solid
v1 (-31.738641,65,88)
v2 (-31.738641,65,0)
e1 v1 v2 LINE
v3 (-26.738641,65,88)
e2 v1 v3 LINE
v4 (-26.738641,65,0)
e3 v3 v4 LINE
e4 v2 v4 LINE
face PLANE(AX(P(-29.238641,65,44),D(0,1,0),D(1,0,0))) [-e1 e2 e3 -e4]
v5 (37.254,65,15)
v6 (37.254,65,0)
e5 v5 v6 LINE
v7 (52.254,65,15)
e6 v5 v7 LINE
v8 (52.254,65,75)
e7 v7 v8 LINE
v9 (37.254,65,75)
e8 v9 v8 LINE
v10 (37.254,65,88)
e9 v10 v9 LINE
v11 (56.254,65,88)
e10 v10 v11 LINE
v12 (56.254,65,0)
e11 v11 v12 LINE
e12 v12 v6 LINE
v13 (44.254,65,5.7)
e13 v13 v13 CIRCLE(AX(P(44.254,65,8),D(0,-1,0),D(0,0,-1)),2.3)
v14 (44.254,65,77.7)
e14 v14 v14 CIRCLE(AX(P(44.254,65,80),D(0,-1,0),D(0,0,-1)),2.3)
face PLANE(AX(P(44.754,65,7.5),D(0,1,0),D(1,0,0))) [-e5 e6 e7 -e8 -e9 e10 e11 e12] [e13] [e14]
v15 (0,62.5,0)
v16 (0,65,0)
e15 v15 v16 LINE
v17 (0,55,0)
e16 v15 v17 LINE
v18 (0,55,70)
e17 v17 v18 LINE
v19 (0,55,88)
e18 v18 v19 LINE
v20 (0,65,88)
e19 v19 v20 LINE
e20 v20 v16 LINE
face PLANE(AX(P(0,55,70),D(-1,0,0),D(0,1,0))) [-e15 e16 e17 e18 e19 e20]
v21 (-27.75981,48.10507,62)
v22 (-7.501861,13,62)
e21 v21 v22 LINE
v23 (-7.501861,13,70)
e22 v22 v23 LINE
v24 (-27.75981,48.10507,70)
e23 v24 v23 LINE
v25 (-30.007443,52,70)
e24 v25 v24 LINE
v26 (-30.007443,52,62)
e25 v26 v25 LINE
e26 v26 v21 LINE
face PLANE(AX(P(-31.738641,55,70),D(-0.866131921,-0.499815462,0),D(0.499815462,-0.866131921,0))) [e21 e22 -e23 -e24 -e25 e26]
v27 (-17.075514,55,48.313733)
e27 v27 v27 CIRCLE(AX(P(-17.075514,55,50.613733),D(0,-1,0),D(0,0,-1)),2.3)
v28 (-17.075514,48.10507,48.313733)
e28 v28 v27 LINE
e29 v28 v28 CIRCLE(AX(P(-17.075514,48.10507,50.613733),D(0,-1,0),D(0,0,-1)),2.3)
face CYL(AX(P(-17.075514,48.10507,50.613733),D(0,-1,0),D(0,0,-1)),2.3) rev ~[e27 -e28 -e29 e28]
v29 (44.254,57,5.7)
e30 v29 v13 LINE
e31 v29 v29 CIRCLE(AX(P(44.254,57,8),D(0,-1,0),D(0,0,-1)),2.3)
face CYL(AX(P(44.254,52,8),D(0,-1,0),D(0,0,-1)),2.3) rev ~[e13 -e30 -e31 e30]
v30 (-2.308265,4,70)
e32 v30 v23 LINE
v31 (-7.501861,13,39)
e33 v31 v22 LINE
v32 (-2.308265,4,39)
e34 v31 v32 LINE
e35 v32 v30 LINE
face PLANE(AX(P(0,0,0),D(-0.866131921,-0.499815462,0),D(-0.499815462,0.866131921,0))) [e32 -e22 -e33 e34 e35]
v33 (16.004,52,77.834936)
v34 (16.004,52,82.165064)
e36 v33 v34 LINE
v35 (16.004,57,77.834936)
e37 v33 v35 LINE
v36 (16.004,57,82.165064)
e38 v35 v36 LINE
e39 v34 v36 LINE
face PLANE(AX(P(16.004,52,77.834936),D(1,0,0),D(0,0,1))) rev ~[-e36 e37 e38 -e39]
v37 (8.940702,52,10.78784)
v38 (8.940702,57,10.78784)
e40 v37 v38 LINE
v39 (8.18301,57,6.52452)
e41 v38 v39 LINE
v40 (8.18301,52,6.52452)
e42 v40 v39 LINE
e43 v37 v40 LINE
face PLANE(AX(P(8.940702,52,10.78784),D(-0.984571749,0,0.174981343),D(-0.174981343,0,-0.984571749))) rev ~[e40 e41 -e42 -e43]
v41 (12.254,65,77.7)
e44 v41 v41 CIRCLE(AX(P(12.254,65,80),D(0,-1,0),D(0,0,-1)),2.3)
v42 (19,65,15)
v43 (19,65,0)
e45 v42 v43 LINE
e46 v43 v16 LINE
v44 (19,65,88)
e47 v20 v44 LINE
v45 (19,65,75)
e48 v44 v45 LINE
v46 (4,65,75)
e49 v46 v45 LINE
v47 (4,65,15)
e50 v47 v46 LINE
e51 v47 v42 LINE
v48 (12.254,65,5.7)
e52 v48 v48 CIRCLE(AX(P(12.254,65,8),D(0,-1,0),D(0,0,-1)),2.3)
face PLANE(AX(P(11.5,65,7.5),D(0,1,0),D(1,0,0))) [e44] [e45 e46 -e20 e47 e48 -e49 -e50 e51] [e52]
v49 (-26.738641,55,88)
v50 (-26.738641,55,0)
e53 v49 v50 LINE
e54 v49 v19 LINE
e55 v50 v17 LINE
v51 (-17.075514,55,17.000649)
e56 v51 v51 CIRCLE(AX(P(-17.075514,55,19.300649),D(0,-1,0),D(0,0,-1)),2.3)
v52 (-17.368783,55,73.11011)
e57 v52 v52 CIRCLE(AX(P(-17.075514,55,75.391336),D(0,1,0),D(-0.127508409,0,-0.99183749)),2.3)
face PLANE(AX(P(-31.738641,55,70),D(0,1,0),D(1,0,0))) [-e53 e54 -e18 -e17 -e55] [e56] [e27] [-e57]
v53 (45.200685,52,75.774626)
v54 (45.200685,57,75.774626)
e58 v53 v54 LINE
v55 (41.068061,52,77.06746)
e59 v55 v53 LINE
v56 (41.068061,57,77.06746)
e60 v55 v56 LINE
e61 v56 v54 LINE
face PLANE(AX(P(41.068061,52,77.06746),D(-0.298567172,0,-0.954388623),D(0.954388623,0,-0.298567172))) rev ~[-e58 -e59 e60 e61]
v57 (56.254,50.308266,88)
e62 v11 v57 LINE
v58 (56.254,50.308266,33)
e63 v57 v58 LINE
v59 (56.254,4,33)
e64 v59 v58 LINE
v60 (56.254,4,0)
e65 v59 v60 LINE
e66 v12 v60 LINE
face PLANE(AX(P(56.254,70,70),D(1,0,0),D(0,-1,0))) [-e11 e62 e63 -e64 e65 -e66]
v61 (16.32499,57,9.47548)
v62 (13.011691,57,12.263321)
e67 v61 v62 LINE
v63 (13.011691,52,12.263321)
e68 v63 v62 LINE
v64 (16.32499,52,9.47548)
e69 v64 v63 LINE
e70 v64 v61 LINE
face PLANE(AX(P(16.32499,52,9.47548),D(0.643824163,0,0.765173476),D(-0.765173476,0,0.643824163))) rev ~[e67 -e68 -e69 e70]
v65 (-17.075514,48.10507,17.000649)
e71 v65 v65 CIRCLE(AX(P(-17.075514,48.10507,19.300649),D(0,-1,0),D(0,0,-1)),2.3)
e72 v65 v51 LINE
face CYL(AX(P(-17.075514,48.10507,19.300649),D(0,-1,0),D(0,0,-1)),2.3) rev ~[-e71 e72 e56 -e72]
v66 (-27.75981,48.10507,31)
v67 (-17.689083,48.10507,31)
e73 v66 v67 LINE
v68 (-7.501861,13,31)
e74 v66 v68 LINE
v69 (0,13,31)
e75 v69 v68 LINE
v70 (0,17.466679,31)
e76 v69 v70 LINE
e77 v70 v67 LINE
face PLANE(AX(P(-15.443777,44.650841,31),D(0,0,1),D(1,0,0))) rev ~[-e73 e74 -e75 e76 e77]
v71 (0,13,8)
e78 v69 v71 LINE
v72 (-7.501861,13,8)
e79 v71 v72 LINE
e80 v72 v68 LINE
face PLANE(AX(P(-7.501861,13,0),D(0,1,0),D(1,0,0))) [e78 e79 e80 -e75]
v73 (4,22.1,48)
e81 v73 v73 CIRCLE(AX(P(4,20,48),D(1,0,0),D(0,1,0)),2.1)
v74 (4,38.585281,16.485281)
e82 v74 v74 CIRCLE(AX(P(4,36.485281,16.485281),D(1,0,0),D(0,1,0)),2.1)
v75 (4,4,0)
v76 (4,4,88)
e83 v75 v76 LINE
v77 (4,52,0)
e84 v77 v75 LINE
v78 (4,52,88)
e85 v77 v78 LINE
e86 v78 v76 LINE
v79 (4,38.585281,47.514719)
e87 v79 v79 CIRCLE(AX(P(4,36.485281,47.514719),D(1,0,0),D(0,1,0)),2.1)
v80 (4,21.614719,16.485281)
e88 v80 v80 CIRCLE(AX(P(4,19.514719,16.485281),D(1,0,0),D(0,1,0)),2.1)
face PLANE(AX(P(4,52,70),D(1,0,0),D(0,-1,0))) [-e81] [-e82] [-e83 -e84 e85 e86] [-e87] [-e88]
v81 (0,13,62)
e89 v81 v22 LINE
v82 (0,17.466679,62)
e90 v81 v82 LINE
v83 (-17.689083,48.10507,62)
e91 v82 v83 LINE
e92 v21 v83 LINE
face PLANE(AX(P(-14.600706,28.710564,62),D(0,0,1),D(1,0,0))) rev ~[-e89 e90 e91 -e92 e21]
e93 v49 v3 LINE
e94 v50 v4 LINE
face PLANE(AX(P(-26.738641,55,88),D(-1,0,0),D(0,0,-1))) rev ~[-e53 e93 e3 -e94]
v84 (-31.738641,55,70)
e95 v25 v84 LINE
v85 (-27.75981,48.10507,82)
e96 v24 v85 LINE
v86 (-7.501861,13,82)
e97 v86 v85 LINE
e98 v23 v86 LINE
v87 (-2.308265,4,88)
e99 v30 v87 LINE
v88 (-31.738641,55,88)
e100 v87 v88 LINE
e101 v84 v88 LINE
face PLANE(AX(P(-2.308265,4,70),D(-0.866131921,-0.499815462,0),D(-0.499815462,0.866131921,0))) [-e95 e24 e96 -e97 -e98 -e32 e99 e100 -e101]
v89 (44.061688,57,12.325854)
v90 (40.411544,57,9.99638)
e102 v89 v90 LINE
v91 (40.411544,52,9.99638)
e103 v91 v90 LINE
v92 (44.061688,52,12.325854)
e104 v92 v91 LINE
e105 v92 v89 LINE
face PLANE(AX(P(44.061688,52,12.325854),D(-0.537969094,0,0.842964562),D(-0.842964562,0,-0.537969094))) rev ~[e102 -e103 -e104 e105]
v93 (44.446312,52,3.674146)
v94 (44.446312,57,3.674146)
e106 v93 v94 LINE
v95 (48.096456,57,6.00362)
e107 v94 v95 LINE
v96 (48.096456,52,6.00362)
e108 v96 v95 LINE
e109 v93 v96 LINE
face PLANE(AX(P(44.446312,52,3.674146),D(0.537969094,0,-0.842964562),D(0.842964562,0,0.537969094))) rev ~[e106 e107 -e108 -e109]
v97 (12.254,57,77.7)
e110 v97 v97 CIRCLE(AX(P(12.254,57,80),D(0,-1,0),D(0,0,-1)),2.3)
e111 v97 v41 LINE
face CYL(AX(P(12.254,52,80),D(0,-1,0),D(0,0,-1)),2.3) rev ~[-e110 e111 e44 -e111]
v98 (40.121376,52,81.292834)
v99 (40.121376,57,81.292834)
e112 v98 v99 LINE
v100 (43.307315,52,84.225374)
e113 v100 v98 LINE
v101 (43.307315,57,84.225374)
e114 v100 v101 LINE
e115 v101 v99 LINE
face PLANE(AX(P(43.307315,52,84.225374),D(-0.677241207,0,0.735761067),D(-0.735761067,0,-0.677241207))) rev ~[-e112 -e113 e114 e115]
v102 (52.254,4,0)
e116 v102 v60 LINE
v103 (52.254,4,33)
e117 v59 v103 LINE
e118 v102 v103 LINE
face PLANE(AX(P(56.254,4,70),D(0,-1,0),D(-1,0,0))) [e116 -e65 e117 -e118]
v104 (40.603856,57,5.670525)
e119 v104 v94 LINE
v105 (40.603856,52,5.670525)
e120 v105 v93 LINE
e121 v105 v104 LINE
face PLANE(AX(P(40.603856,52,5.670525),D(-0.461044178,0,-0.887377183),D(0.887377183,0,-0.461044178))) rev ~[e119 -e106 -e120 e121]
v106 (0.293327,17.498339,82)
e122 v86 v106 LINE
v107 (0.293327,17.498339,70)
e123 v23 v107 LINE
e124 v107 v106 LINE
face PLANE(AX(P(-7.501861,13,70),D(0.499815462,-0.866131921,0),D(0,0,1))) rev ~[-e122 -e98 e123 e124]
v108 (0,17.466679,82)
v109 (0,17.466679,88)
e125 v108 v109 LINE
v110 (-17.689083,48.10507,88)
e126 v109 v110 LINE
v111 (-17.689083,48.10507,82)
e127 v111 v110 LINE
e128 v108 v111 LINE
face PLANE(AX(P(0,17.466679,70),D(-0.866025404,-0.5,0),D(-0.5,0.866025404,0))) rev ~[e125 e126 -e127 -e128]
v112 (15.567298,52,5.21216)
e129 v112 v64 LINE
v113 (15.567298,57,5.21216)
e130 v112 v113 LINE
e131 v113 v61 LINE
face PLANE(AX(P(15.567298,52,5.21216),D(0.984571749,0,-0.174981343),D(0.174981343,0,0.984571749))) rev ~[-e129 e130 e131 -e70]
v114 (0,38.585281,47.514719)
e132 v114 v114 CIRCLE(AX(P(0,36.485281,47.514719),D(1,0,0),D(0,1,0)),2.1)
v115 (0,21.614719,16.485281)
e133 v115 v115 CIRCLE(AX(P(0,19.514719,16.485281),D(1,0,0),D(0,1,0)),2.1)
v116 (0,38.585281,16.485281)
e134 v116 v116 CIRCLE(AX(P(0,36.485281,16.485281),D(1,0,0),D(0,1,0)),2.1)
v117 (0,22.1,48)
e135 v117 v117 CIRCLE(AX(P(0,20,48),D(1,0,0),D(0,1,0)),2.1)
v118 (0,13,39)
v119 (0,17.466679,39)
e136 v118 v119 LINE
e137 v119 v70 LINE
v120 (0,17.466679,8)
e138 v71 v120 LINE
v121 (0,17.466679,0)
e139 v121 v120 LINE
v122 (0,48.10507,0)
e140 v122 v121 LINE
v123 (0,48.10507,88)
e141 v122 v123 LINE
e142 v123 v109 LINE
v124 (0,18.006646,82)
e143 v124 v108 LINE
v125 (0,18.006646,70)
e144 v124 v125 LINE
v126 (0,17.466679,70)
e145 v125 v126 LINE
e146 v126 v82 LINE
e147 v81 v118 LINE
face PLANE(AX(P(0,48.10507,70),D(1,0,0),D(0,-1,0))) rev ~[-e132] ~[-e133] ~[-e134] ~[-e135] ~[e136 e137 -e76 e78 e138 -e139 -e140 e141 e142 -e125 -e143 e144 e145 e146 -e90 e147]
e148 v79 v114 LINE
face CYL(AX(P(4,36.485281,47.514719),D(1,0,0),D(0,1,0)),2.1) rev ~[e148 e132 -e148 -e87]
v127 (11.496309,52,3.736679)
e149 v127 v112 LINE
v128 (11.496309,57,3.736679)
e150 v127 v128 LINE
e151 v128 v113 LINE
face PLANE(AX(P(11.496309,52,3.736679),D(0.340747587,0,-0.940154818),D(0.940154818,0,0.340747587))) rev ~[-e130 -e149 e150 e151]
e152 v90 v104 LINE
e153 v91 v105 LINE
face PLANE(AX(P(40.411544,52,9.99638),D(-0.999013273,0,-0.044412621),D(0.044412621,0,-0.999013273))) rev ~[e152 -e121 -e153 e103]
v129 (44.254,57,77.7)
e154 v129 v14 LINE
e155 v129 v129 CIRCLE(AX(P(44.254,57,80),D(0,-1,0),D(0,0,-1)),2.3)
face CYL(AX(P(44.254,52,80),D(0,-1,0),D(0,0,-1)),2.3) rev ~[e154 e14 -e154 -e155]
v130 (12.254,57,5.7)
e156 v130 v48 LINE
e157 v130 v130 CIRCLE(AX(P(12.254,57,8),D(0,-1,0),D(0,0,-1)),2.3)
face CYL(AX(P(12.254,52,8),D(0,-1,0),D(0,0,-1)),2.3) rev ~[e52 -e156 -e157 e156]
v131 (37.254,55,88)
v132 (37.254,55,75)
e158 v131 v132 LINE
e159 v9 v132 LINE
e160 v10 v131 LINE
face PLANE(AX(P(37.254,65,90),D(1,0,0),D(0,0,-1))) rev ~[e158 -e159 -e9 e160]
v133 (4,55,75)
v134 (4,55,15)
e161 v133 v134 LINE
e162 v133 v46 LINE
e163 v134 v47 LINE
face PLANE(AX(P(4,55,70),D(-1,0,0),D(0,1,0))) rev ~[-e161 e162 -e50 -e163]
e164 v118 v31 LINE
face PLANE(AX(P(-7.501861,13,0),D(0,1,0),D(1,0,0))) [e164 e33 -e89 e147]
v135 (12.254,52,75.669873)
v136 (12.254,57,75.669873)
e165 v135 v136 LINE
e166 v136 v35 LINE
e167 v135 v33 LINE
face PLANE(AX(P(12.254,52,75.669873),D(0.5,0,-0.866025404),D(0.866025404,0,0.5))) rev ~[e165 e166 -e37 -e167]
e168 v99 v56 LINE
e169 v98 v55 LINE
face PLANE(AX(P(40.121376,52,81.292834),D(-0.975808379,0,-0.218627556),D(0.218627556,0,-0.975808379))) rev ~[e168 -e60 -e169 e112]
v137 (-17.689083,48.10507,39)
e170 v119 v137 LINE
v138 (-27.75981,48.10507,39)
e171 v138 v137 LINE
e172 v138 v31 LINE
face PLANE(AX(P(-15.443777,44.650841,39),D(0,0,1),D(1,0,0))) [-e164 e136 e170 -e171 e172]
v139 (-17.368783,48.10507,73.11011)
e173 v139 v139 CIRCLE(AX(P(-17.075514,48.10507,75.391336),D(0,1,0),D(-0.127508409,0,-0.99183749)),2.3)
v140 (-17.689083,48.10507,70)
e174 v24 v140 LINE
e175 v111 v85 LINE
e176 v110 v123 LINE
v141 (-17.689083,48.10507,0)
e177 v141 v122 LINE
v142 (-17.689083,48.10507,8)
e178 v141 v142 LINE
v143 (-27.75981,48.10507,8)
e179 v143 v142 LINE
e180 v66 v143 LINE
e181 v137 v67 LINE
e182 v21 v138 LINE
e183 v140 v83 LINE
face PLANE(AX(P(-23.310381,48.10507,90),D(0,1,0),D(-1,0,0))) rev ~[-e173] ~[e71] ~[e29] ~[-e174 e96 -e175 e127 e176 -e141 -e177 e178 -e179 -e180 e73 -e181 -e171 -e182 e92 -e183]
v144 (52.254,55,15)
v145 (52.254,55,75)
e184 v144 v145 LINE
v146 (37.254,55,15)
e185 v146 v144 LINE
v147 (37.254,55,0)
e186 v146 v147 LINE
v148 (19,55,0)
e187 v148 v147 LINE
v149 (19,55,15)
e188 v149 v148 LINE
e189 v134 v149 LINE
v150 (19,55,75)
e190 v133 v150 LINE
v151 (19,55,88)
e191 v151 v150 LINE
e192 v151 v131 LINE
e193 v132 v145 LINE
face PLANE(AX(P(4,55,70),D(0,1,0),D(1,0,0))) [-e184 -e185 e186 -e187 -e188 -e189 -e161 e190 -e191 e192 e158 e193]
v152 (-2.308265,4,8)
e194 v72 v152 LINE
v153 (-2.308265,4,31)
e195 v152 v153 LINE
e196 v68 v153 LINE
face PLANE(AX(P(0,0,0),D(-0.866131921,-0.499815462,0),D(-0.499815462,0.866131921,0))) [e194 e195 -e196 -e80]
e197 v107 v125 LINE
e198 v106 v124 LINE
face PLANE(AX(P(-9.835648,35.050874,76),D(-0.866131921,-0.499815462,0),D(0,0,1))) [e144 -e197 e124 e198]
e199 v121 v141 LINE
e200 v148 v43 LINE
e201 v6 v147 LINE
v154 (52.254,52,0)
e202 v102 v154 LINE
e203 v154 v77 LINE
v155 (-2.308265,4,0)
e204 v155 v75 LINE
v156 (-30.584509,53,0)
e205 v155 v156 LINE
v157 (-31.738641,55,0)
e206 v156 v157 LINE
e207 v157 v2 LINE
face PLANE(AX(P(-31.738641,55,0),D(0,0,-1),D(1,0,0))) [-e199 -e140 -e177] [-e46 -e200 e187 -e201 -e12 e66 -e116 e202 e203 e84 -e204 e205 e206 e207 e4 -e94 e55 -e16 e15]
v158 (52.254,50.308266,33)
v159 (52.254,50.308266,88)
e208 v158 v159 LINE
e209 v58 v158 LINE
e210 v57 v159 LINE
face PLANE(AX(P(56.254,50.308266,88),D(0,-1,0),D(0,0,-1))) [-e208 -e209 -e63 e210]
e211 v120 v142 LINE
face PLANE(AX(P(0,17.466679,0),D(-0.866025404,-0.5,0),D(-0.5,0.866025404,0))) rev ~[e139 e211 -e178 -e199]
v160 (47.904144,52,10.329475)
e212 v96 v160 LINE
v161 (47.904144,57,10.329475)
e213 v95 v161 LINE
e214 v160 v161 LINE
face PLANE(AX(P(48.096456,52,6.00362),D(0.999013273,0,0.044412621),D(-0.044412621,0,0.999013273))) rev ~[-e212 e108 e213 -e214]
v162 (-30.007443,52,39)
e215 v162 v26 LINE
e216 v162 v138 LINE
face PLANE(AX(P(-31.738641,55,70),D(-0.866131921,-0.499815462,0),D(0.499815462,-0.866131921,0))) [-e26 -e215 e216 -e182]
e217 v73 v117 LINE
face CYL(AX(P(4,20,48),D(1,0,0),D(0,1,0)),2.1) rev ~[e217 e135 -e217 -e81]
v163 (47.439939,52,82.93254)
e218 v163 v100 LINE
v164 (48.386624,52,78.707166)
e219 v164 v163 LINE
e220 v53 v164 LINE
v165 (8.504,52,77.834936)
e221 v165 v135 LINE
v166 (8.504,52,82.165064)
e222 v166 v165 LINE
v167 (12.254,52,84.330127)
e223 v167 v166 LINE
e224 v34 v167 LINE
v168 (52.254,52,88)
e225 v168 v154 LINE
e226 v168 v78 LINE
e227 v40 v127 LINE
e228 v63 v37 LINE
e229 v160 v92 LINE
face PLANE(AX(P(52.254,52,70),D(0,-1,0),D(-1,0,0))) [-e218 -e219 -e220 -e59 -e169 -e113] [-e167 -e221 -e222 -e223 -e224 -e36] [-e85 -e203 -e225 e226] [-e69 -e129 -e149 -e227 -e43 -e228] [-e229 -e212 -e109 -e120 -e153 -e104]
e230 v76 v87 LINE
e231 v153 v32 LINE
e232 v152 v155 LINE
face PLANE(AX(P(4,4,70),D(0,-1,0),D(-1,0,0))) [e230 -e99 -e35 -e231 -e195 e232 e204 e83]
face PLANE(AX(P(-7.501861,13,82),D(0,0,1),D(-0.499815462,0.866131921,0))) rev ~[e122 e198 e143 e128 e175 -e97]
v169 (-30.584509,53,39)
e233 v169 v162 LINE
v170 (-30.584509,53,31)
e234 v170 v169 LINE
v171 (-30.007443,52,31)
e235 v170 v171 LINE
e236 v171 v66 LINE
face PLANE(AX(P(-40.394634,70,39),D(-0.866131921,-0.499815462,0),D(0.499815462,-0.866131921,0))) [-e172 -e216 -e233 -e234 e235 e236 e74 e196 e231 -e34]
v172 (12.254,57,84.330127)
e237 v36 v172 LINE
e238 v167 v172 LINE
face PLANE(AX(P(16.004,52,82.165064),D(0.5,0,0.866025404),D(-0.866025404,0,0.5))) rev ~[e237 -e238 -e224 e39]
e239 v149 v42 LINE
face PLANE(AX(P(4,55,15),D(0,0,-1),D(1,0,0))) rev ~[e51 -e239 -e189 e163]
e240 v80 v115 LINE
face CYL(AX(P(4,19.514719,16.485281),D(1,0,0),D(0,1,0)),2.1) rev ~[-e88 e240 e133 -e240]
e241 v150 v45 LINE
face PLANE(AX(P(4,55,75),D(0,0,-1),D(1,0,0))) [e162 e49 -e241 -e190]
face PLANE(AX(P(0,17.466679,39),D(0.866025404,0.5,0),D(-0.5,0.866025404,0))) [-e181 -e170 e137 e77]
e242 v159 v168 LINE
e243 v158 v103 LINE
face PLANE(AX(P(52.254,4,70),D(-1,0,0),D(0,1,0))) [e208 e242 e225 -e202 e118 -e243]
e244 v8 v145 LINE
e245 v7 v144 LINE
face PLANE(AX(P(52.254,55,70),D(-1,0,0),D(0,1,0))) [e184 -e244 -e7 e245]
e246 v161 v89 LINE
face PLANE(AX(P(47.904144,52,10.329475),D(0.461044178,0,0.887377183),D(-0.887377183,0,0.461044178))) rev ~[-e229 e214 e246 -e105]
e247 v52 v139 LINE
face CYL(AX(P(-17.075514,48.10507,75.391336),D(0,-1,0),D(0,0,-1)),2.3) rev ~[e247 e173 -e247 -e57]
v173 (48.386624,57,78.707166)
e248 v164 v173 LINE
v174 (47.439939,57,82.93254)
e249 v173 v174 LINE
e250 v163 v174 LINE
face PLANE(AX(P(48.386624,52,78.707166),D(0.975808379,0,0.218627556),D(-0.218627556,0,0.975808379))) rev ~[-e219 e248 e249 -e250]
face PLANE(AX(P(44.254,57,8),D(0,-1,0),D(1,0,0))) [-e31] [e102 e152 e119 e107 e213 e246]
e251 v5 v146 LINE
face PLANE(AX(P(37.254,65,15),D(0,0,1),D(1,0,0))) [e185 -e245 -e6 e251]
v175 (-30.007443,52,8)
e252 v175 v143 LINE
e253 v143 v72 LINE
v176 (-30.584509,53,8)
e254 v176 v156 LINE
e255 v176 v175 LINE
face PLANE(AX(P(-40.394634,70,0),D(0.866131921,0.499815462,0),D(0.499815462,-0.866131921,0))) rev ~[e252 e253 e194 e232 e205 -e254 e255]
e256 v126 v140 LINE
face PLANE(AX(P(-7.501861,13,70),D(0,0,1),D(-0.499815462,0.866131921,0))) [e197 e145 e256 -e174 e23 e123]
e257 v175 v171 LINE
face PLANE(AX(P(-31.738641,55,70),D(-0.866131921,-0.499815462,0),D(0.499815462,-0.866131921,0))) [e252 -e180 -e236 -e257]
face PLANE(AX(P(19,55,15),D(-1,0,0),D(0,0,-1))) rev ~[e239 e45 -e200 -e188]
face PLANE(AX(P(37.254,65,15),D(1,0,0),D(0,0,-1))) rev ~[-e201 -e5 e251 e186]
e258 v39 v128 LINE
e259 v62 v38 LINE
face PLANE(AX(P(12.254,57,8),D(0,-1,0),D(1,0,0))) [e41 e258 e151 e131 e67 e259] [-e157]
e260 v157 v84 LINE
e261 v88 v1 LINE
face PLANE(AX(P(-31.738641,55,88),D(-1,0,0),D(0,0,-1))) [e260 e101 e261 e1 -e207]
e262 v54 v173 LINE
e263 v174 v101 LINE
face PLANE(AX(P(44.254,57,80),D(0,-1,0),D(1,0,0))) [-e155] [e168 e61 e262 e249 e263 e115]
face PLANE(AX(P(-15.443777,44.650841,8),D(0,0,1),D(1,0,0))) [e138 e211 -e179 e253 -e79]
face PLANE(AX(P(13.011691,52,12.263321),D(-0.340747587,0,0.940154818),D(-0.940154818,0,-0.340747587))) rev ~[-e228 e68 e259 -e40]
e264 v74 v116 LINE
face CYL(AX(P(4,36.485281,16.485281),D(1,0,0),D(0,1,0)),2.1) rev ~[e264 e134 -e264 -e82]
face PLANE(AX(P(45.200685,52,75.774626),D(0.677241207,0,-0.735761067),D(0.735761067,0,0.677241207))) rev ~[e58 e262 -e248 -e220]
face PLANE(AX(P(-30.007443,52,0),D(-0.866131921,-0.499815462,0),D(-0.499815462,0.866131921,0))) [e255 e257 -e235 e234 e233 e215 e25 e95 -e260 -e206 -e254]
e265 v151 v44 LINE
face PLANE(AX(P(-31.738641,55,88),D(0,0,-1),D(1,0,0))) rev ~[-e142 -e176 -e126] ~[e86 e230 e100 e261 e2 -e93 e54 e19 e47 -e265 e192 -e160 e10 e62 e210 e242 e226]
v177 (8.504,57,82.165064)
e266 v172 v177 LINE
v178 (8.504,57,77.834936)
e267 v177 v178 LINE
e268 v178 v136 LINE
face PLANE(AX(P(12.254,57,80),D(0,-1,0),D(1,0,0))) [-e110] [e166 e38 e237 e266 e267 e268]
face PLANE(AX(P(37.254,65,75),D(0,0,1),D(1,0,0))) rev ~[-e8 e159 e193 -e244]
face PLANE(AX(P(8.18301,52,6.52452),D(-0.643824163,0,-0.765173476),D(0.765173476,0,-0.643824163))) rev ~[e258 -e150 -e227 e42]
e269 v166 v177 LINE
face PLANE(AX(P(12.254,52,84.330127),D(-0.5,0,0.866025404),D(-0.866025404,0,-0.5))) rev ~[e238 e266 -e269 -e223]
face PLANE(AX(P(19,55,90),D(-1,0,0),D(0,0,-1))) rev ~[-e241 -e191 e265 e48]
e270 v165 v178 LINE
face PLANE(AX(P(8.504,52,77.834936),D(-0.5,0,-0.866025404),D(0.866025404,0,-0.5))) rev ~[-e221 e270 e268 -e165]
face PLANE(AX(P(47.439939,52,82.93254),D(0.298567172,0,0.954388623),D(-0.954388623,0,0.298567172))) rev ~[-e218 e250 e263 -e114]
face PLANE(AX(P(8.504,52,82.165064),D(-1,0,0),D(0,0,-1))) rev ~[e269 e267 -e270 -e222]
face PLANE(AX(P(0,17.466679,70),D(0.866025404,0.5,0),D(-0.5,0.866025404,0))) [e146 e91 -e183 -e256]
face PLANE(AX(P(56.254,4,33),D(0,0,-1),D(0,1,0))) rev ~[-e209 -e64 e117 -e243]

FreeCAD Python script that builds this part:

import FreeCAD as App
import Part
import Sketcher
Q = App.Units.Quantity


def add_polygon(sketch, points):
    """Adds a closed chain of lines whose ends are joined by coincident constraints."""
    first, n = sketch.GeometryCount, len(points)
    for a, b in zip(points, points[1:] + points[:1]):
        sketch.addGeometry(Part.LineSegment(App.Vector(*a, 0), App.Vector(*b, 0)), False)
    for i in range(n):
        sketch.addConstraint(Sketcher.Constraint("Coincident", first + i, 2, first + (i + 1) % n, 1))

doc = App.newDocument("Part")
body = doc.addObject("PartDesign::Body", "Body")

# Sketch on XY plane
sketch1 = body.newObject("Sketcher::SketchObject", "Sketch")
sketch1.AttachmentSupport = (doc.getObject("XY_Plane"), [""])
sketch1.MapMode = "FlatFace"
add_polygon(sketch1, [(0, 0), (4, 0), (4, 52), (52.254, 52), (52.254, 0), (56.254, 0), (56.254, 70), (0, 70)])  # lines 0-7
add_polygon(sketch1, [(52.254, 65), (52.254, 55), (4, 55), (4, 65)])  # lines 8-11
sketch1.addConstraint([
    Sketcher.Constraint("Horizontal", 0),
    Sketcher.Constraint("Vertical", 1),
    Sketcher.Constraint("Horizontal", 2),
    Sketcher.Constraint("Vertical", 3),
    Sketcher.Constraint("Horizontal", 4),
    Sketcher.Constraint("Vertical", 5),
    Sketcher.Constraint("Horizontal", 6),
    Sketcher.Constraint("Vertical", 7),
    Sketcher.Constraint("Vertical", 8),
    Sketcher.Constraint("Horizontal", 9),
    Sketcher.Constraint("Vertical", 10),
    Sketcher.Constraint("Horizontal", 11),
    Sketcher.Constraint("Coincident", 7, 2, -1, 1),
    Sketcher.Constraint("PointOnObject", 3, 2, -1),
    Sketcher.Constraint("Vertical", 3, 2, 8, 2),
    Sketcher.Constraint("Vertical", 1, 2, 9, 2),
    Sketcher.Constraint("Equal", 0, 4),
    Sketcher.Constraint("DistanceX", 0, 1, 0, 2, Q("4 mm")),
    Sketcher.Constraint("DistanceY", 1, 1, 1, 2, Q("52 mm")),
    Sketcher.Constraint("DistanceY", 5, 1, 5, 2, Q("70 mm")),
    Sketcher.Constraint("DistanceY", 8, 2, 8, 1, Q("10 mm")),
    Sketcher.Constraint("DistanceY", -1, 1, 8, 2, Q("55 mm")),
    Sketcher.Constraint("DistanceX", 2, 1, 2, 2, Q("48.254 mm")),
])
pad1 = body.newObject("PartDesign::Pad", "Pad")
pad1.Profile = sketch1
pad1.Length = 70

# Sketch on XY plane
sketch2 = body.newObject("Sketcher::SketchObject", "Sketch001")
sketch2.AttachmentSupport = (doc.getObject("XY_Plane"), [""])
sketch2.MapMode = "FlatFace"
sketch2.AttachmentOffset = App.Placement(App.Vector(0, 0, 70), App.Rotation())
add_polygon(sketch2, [(0, 62.5), (0, 70), (-40.394634, 70), (0, 0.034441), (0, 17.466679), (-26, 62.5)])  # lines 0-5
sketch2.addConstraint([
    Sketcher.Constraint("Vertical", 0),
    Sketcher.Constraint("Horizontal", 1),
    Sketcher.Constraint("Vertical", 3),
    Sketcher.Constraint("Horizontal", 5),
    Sketcher.Constraint("PointOnObject", 0, 2, -2),
    Sketcher.Constraint("PointOnObject", 2, 2, -2),
    Sketcher.Constraint("Parallel", 2, 4),
    Sketcher.Constraint("DistanceX", 5, 1, 5, 2, Q("26 mm")),
    Sketcher.Constraint("Angle", 2, Q("-60 deg")),
    Sketcher.Constraint("DistanceY", 0, 1, 0, 2, Q("7.5 mm")),
    Sketcher.Constraint("DistanceY", -1, 1, 0, 2, Q("70 mm")),
    Sketcher.Constraint("DistanceY", 3, 1, 3, 2, Q("17.432238 mm")),
])
pad2 = body.newObject("PartDesign::Pad", "Pad001")
pad2.Profile = sketch2
pad2.Length = 8
pad2.Reversed = True

# Sketch on XY plane
sketch3 = body.newObject("Sketcher::SketchObject", "Sketch002")
sketch3.AttachmentSupport = (doc.getObject("XY_Plane"), [""])
sketch3.MapMode = "FlatFace"
add_polygon(sketch3, [(-40.394634, 70), (0, 70), (0, 62.5), (-26, 62.5), (0, 17.466679), (0, 0)])  # lines 0-5
sketch3.addConstraint([
    Sketcher.Constraint("Horizontal", 0),
    Sketcher.Constraint("Vertical", 1),
    Sketcher.Constraint("Horizontal", 2),
    Sketcher.Constraint("Vertical", 4),
    Sketcher.Constraint("Coincident", 4, 2, -1, 1),
    Sketcher.Constraint("PointOnObject", 0, 2, -2),
    Sketcher.Constraint("DistanceX", 2, 2, 2, 1, Q("26 mm")),
    Sketcher.Constraint("Angle", 3, Q("-60 deg")),
    Sketcher.Constraint("DistanceY", 1, 2, 1, 1, Q("7.5 mm")),
    Sketcher.Constraint("DistanceY", -1, 1, 0, 2, Q("70 mm")),
    Sketcher.Constraint("DistanceX", 0, 1, 0, 2, Q("40.394634 mm")),
])
pad3 = body.newObject("PartDesign::Pad", "Pad002")
pad3.Profile = sketch3
pad3.Length = 8

# Sketch on XY plane
sketch4 = body.newObject("Sketcher::SketchObject", "Sketch003")
sketch4.AttachmentSupport = (doc.getObject("XY_Plane"), [""])
sketch4.MapMode = "FlatFace"
sketch4.AttachmentOffset = App.Placement(App.Vector(0, 0, 39), App.Rotation())
add_polygon(sketch4, [(0, 70), (0, 62.5), (-26, 62.5), (0, 17.466679), (0, 0), (-40.394634, 70)])  # lines 0-5
sketch4.addConstraint([
    Sketcher.Constraint("Vertical", 0),
    Sketcher.Constraint("Horizontal", 1),
    Sketcher.Constraint("Vertical", 3),
    Sketcher.Constraint("Horizontal", 5),
    Sketcher.Constraint("Coincident", 3, 2, -1, 1),
    Sketcher.Constraint("PointOnObject", 0, 2, -2),
    Sketcher.Constraint("DistanceX", 1, 2, 1, 1, Q("26 mm")),
    Sketcher.Constraint("Angle", 2, Q("-60 deg")),
    Sketcher.Constraint("DistanceY", 0, 2, 0, 1, Q("7.5 mm")),
    Sketcher.Constraint("DistanceY", -1, 1, 4, 2, Q("70 mm")),
    Sketcher.Constraint("DistanceX", 5, 1, 5, 2, Q("40.394634 mm")),
])
pad4 = body.newObject("PartDesign::Pad", "Pad003")
pad4.Profile = sketch4
pad4.Length = 8
pad4.Reversed = True

# Sketch on XY plane
sketch5 = body.newObject("Sketcher::SketchObject", "Sketch004")
sketch5.AttachmentSupport = (doc.getObject("XY_Plane"), [""])
sketch5.MapMode = "FlatFace"
add_polygon(sketch5, [(0, 62.5), (-36.066638, 62.5), (-40.394634, 70), (0, 70)])  # lines 0-3
add_polygon(sketch5, [(4, 0), (0, 0), (-7.501861, 13), (4, 13)])  # lines 4-7
sketch5.addConstraint([
    Sketcher.Constraint("Horizontal", 0),
    Sketcher.Constraint("Horizontal", 2),
    Sketcher.Constraint("Vertical", 3),
    Sketcher.Constraint("Horizontal", 4),
    Sketcher.Constraint("Horizontal", 6),
    Sketcher.Constraint("Vertical", 7),
    Sketcher.Constraint("Coincident", 4, 2, -1, 1),
    Sketcher.Constraint("PointOnObject", 2, 2, -2),
    Sketcher.Constraint("Parallel", 1, 5),
    Sketcher.Constraint("DistanceX", 4, 2, 4, 1, Q("4 mm")),
    Sketcher.Constraint("DistanceY", 7, 2, 7, 1, Q("13 mm")),
    Sketcher.Constraint("DistanceY", 3, 2, 3, 1, Q("7.5 mm")),
    Sketcher.Constraint("DistanceY", -1, 1, 1, 2, Q("70 mm")),
    Sketcher.Constraint("DistanceX", 6, 1, 6, 2, Q("11.501861 mm")),
    Sketcher.Constraint("DistanceX", 0, 2, 0, 1, Q("36.066638 mm")),
])
pad5 = body.newObject("PartDesign::Pad", "Pad004")
pad5.Profile = sketch5
pad5.Length = 70

# Sketch on XY plane
sketch6 = body.newObject("Sketcher::SketchObject", "Sketch005")
sketch6.AttachmentSupport = (doc.getObject("XY_Plane"), [""])
sketch6.MapMode = "FlatFace"
sketch6.AttachmentOffset = App.Placement(App.Vector(0, 0, 70), App.Rotation())
add_polygon(sketch6, [(-40.394634, 70), (-40.394634, 53), (0, 53), (0, 70)])  # lines 0-3
sketch6.addConstraint([
    Sketcher.Constraint("Vertical", 0),
    Sketcher.Constraint("Horizontal", 1),
    Sketcher.Constraint("Vertical", 2),
    Sketcher.Constraint("Horizontal", 3),
    Sketcher.Constraint("PointOnObject", 1, 2, -2),
    Sketcher.Constraint("DistanceY", 0, 2, 0, 1, Q("17 mm")),
    Sketcher.Constraint("DistanceY", -1, 1, 0, 2, Q("53 mm")),
    Sketcher.Constraint("DistanceX", 1, 1, 1, 2, Q("40.394634 mm")),
])
pocket1 = body.newObject("PartDesign::Pocket", "Pocket")
pocket1.Profile = sketch6
pocket1.Length = 70

# Sketch on XY plane
sketch7 = body.newObject("Sketcher::SketchObject", "Sketch006")
sketch7.AttachmentSupport = (doc.getObject("XY_Plane"), [""])
sketch7.MapMode = "FlatFace"
add_polygon(sketch7, [(4, 55), (4, 52), (-30.007443, 52), (-31.738641, 55)])  # lines 0-3
sketch7.addConstraint([
    Sketcher.Constraint("Vertical", 0),
    Sketcher.Constraint("Horizontal", 1),
    Sketcher.Constraint("Horizontal", 3),
    Sketcher.Constraint("DistanceY", 0, 2, 0, 1, Q("3 mm")),
    Sketcher.Constraint("DistanceX", -1, 1, 0, 2, Q("4 mm")),
    Sketcher.Constraint("DistanceY", -1, 1, 0, 2, Q("52 mm")),
    Sketcher.Constraint("DistanceX", 3, 1, 3, 2, Q("35.738641 mm")),
    Sketcher.Constraint("DistanceX", 2, 2, 1, 2, Q("1.731199 mm")),
])
pad6 = body.newObject("PartDesign::Pad", "Pad005")
pad6.Profile = sketch7
pad6.Length = 70

# Sketch on XY plane
sketch8 = body.newObject("Sketcher::SketchObject", "Sketch007")
sketch8.AttachmentSupport = (doc.getObject("XY_Plane"), [""])
sketch8.MapMode = "FlatFace"
sketch8.AttachmentOffset = App.Placement(App.Vector(0, 0, 70), App.Rotation())
add_polygon(sketch8, [(-31.738641, 55), (0, 0), (-3.053687, 13), (-27.288966, 55)])  # lines 0-3
sketch8.addConstraint([
    Sketcher.Constraint("Horizontal", 3),
    Sketcher.Constraint("Coincident", 0, 2, -1, 1),
    Sketcher.Constraint("DistanceY", -1, 1, 1, 2, Q("13 mm")),
    Sketcher.Constraint("DistanceY", -1, 1, 2, 2, Q("55 mm")),
    Sketcher.Constraint("Distance", 0, Q("63.500719 mm")),
    Sketcher.Constraint("Distance", 1, Q("13.353839 mm")),
    Sketcher.Constraint("DistanceX", 3, 2, 3, 1, Q("4.449676 mm")),
])
pad7 = body.newObject("PartDesign::Pad", "Pad006")
pad7.Profile = sketch8
pad7.Length = 8
pad7.Reversed = True

# Sketch on XY plane
sketch9 = body.newObject("Sketcher::SketchObject", "Sketch008")
sketch9.AttachmentSupport = (doc.getObject("XY_Plane"), [""])
sketch9.MapMode = "FlatFace"
sketch9.AttachmentOffset = App.Placement(App.Vector(0, 0, 70), App.Rotation())
add_polygon(sketch9, [(-31.738641, 55), (-27.75981, 48.10507), (0, 48.10507), (0, 55)])  # lines 0-3
sketch9.addConstraint([
    Sketcher.Constraint("Horizontal", 1),
    Sketcher.Constraint("Vertical", 2),
    Sketcher.Constraint("Horizontal", 3),
    Sketcher.Constraint("PointOnObject", 1, 2, -2),
    Sketcher.Constraint("DistanceY", -1, 1, 2, 2, Q("55 mm")),
    Sketcher.Constraint("Distance", 0, Q("7.9606 mm")),
    Sketcher.Constraint("DistanceX", 1, 1, 1, 2, Q("27.75981 mm")),
    Sketcher.Constraint("DistanceX", 3, 2, 3, 1, Q("31.738641 mm")),
])
pad8 = body.newObject("PartDesign::Pad", "Pad007")
pad8.Profile = sketch9
pad8.Length = 70
pad8.Reversed = True

# Sketch on XZ plane
sketch10 = body.newObject("Sketcher::SketchObject", "Sketch009")
sketch10.AttachmentSupport = (doc.getObject("XZ_Plane"), [""])
sketch10.MapMode = "FlatFace"
add_polygon(sketch10, [(-15.562047, 77.248106), (-15.562047, -10.620454), (67.439364, -10.620454), (67.439364, 77.248106)])  # lines 0-3
sketch10.addConstraint([
    Sketcher.Constraint("Vertical", 0),
    Sketcher.Constraint("Horizontal", 1),
    Sketcher.Constraint("Vertical", 2),
    Sketcher.Constraint("Horizontal", 3),
    Sketcher.Constraint("DistanceX", 1, 1, 1, 2, Q("83.001411 mm")),
    Sketcher.Constraint("DistanceY", 0, 2, 0, 1, Q("87.86856 mm")),
    Sketcher.Constraint("DistanceX", 0, 2, -1, 1, Q("15.562047 mm")),
    Sketcher.Constraint("DistanceY", 0, 2, -1, 1, Q("10.620454 mm")),
])
pocket2 = body.newObject("PartDesign::Pocket", "Pocket001")
pocket2.Profile = sketch10
pocket2.Length = 4

# Sketch on XY plane
sketch11 = body.newObject("Sketcher::SketchObject", "Sketch010")
sketch11.AttachmentSupport = (doc.getObject("XY_Plane"), [""])
sketch11.MapMode = "FlatFace"
sketch11.AttachmentOffset = App.Placement(App.Vector(0, 0, 70), App.Rotation())
add_polygon(sketch11, [(-31.738641, 55), (-2.308265, 4), (4, 4), (4, 52), (52.254, 52), (52.254, 4), (56.254, 4), (56.254, 70), (0, 70), (0, 55)])  # lines 0-9
add_polygon(sketch11, [(-17.689083, 48.10507), (0, 48.10507), (0, 17.466679)])  # lines 10-12
add_polygon(sketch11, [(4, 55), (4, 65), (52.254, 65), (52.254, 55)])  # lines 13-16
sketch11.addConstraint([
    Sketcher.Constraint("Horizontal", 1),
    Sketcher.Constraint("Vertical", 2),
    Sketcher.Constraint("Horizontal", 3),
    Sketcher.Constraint("Vertical", 4),
    Sketcher.Constraint("Horizontal", 5),
    Sketcher.Constraint("Vertical", 6),
    Sketcher.Constraint("Horizontal", 7),
    Sketcher.Constraint("Vertical", 8),
    Sketcher.Constraint("Horizontal", 9),
    Sketcher.Constraint("Horizontal", 10),
    Sketcher.Constraint("Vertical", 11),
    Sketcher.Constraint("Vertical", 13),
    Sketcher.Constraint("Horizontal", 14),
    Sketcher.Constraint("Vertical", 15),
    Sketcher.Constraint("Horizontal", 16),
    Sketcher.Constraint("PointOnObject", 7, 2, -2),
    Sketcher.Constraint("PointOnObject", 10, 2, -2),
    Sketcher.Constraint("Horizontal", 1, 2, 4, 2),
    Sketcher.Constraint("Horizontal", 9, 2, 15, 2),
    Sketcher.Constraint("Vertical", 2, 2, 13, 2),
    Sketcher.Constraint("Vertical", 4, 2, 14, 2),
    Sketcher.Constraint("DistanceX", 5, 1, 5, 2, Q("4 mm")),
    Sketcher.Constraint("DistanceY", 2, 1, 2, 2, Q("48 mm")),
    Sketcher.Constraint("DistanceY", 6, 1, 6, 2, Q("66 mm")),
    Sketcher.Constraint("DistanceY", 8, 2, 8, 1, Q("15 mm")),
    Sketcher.Constraint("DistanceY", 13, 1, 13, 2, Q("10 mm")),
    Sketcher.Constraint("Angle", 12, Q("120 deg")),
    Sketcher.Constraint("DistanceY", -1, 1, 0, 2, Q("4 mm")),
    Sketcher.Constraint("DistanceX", -1, 1, 1, 2, Q("4 mm")),
    Sketcher.Constraint("DistanceX", 3, 1, 3, 2, Q("48.254 mm")),
    Sketcher.Constraint("DistanceX", 9, 2, 9, 1, Q("31.738641 mm")),
    Sketcher.Constraint("DistanceY", 11, 2, 11, 1, Q("30.638391 mm")),
    Sketcher.Constraint("DistanceX", 1, 1, 1, 2, Q("6.308265 mm")),
    Sketcher.Constraint("DistanceY", -1, 1, 10, 2, Q("48.10507 mm")),
])
pad9 = body.newObject("PartDesign::Pad", "Pad008")
pad9.Profile = sketch11
pad9.Length = 20

# Sketch on XY plane
sketch12 = body.newObject("Sketcher::SketchObject", "Sketch011")
sketch12.AttachmentSupport = (doc.getObject("XY_Plane"), [""])
sketch12.MapMode = "FlatFace"
sketch12.AttachmentOffset = App.Placement(App.Vector(0, 0, 90), App.Rotation())
add_polygon(sketch12, [(0, 70), (0, 65), (56.254, 65), (56.254, 70)])  # lines 0-3
sketch12.addConstraint([
    Sketcher.Constraint("Vertical", 0),
    Sketcher.Constraint("Horizontal", 1),
    Sketcher.Constraint("Vertical", 2),
    Sketcher.Constraint("Horizontal", 3),
    Sketcher.Constraint("PointOnObject", 0, 2, -2),
    Sketcher.Constraint("DistanceY", 0, 2, 0, 1, Q("5 mm")),
    Sketcher.Constraint("DistanceY", -1, 1, 0, 2, Q("65 mm")),
    Sketcher.Constraint("DistanceX", 1, 1, 1, 2, Q("56.254 mm")),
])
pocket3 = body.newObject("PartDesign::Pocket", "Pocket002")
pocket3.Profile = sketch12
pocket3.Length = 100

# Sketch on XZ plane
sketch13 = body.newObject("Sketcher::SketchObject", "Sketch012")
sketch13.AttachmentSupport = (doc.getObject("XZ_Plane"), [""])
sketch13.MapMode = "FlatFace"
sketch13.AttachmentOffset = App.Placement(App.Vector(0, 0, -65), App.Rotation())
add_polygon(sketch13, [(37.254, 0), (37.254, 15), (52.254, 15), (52.254, 0)])  # lines 0-3
add_polygon(sketch13, [(37.254, 75), (37.254, 90), (52.254, 90), (52.254, 75)])  # lines 4-7
sketch13.addConstraint([
    Sketcher.Constraint("Vertical", 0),
    Sketcher.Constraint("Horizontal", 1),
    Sketcher.Constraint("Vertical", 2),
    Sketcher.Constraint("Horizontal", 3),
    Sketcher.Constraint("Vertical", 4),
    Sketcher.Constraint("Horizontal", 5),
    Sketcher.Constraint("Vertical", 6),
    Sketcher.Constraint("Horizontal", 7),
    Sketcher.Constraint("PointOnObject", 2, 2, -1),
    Sketcher.Constraint("Vertical", 3, 2, 4, 2),
    Sketcher.Constraint("Vertical", 2, 2, 5, 2),
    Sketcher.Constraint("Equal", 7, 0),
    Sketcher.Constraint("Equal", 2, 4),
    Sketcher.Constraint("DistanceX", 1, 1, 1, 2, Q("15 mm")),
    Sketcher.Constraint("DistanceY", -1, 1, 4, 2, Q("90 mm")),
    Sketcher.Constraint("DistanceX", -1, 1, 0, 2, Q("37.254 mm")),
])
pad10 = body.newObject("PartDesign::Pad", "Pad009")
pad10.Profile = sketch13
pad10.Length = 13

# Sketch on XZ plane
sketch14 = body.newObject("Sketcher::SketchObject", "Sketch013")
sketch14.AttachmentSupport = (doc.getObject("XZ_Plane"), [""])
sketch14.MapMode = "FlatFace"
sketch14.AttachmentOffset = App.Placement(App.Vector(0, 0, -52), App.Rotation())
add_polygon(sketch14, [(48.096456, 6.00362), (47.904144, 10.329475), (44.061688, 12.325854), (40.411544, 9.99638), (40.603856, 5.670525), (44.446312, 3.674146)])  # lines 0-5
add_polygon(sketch14, [(45.200685, 75.774626), (48.386624, 78.707166), (47.439939, 82.93254), (43.307315, 84.225374), (40.121376, 81.292834), (41.068061, 77.06746)])  # lines 6-11
sketch14.addConstraint([
    Sketcher.Constraint("Parallel", 0, 3),
    Sketcher.Constraint("Parallel", 1, 4),
    Sketcher.Constraint("Parallel", 2, 5),
    Sketcher.Constraint("Parallel", 6, 9),
    Sketcher.Constraint("Parallel", 7, 10),
    Sketcher.Constraint("Parallel", 8, 11),
    Sketcher.Constraint("Equal", 0, 1),
    Sketcher.Constraint("Equal", 1, 2),
    Sketcher.Constraint("Equal", 2, 3),
    Sketcher.Constraint("Equal", 5, 6),
    Sketcher.Constraint("Equal", 6, 7),
    Sketcher.Constraint("Equal", 7, 8),
    Sketcher.Constraint("Equal", 8, 9),
    Sketcher.Constraint("DistanceX", 2, 2, 0, 2, Q("7.4926 mm")),
    Sketcher.Constraint("DistanceY", 0, 2, 8, 2, Q("73.8959 mm")),
    Sketcher.Constraint("DistanceY", -1, 1, 2, 2, Q("9.99638 mm")),
    Sketcher.Constraint("DistanceY", -1, 1, 5, 2, Q("6.00362 mm")),
    Sketcher.Constraint("DistanceX", -1, 1, 7, 2, Q("47.439939 mm")),
    Sketcher.Constraint("DistanceY", -1, 1, 7, 2, Q("82.93254 mm")),
    Sketcher.Constraint("DistanceX", -1, 1, 10, 2, Q("41.068061 mm")),
    Sketcher.Constraint("DistanceY", -1, 1, 10, 2, Q("77.06746 mm")),
    Sketcher.Constraint("DistanceY", 0, 2, 1, 2, Q("1.99638 mm")),
    Sketcher.Constraint("DistanceX", 3, 2, 1, 2, Q("3.457831 mm")),
    Sketcher.Constraint("DistanceX", 0, 2, 6, 2, Q("0.48248 mm")),
])
pocket4 = body.newObject("PartDesign::Pocket", "Pocket003")
pocket4.Profile = sketch14
pocket4.Length = 5

# Sketch on XZ plane
sketch15 = body.newObject("Sketcher::SketchObject", "Sketch014")
sketch15.AttachmentSupport = (doc.getObject("XZ_Plane"), [""])
sketch15.MapMode = "FlatFace"
sketch15.AttachmentOffset = App.Placement(App.Vector(0, 0, -52), App.Rotation())
sketch15.addGeometry([
    Part.Circle(App.Vector(44.254, 80, 0), App.Vector(0, 0, 1), 2.3),
    Part.Circle(App.Vector(44.254, 8, 0), App.Vector(0, 0, 1), 2.3),
], False)
sketch15.addConstraint([
    Sketcher.Constraint("Equal", 0, 1),
    Sketcher.Constraint("Vertical", 0, 3, 1, 3),
    Sketcher.Constraint("Diameter", 0, Q("4.6 mm")),
    Sketcher.Constraint("DistanceY", -1, 1, 0, 3, Q("80 mm")),
    Sketcher.Constraint("DistanceY", -1, 1, 1, 3, Q("8 mm")),
    Sketcher.Constraint("DistanceX", -1, 1, 0, 3, Q("44.254 mm")),
])
pocket5 = body.newObject("PartDesign::Pocket", "Pocket004")
pocket5.Profile = sketch15
pocket5.Length = 15

# Sketch on an angled plane
sketch16 = body.newObject("Sketcher::SketchObject", "Sketch015")
sketch16.Placement = App.Placement(App.Vector(0, 0, 0), App.Rotation(App.Vector(0, 0, 1), App.Vector(-0.499815462, 0.866131921, 0), App.Vector(-0.866131921, -0.499815462, 0), "ZXY"))
add_polygon(sketch16, [(70, 55.540119), (70, 15.009261), (82, 15.009261), (82, 55.540119)])  # lines 0-3
sketch16.addConstraint([
    Sketcher.Constraint("Vertical", 0),
    Sketcher.Constraint("Horizontal", 1),
    Sketcher.Constraint("Vertical", 2),
    Sketcher.Constraint("Horizontal", 3),
    Sketcher.Constraint("DistanceX", 1, 1, 1, 2, Q("12 mm")),
    Sketcher.Constraint("DistanceX", -1, 1, 0, 2, Q("70 mm")),
    Sketcher.Constraint("DistanceY", 0, 2, 0, 1, Q("40.530858 mm")),
    Sketcher.Constraint("DistanceY", -1, 1, 0, 2, Q("15.009261 mm")),
])
pocket6 = body.newObject("PartDesign::Pocket", "Pocket005")
pocket6.Profile = sketch16
pocket6.Length = 9

# Sketch on XZ plane
sketch17 = body.newObject("Sketcher::SketchObject", "Sketch016")
sketch17.AttachmentSupport = (doc.getObject("XZ_Plane"), [""])
sketch17.MapMode = "FlatFace"
sketch17.AttachmentOffset = App.Placement(App.Vector(0, 0, -48.10507), App.Rotation())
sketch17.addGeometry([
    Part.Circle(App.Vector(-17.075514, 19.300649, 0), App.Vector(0, 0, 1), 2.3),
    Part.Circle(App.Vector(-17.075514, 50.613733, 0), App.Vector(0, 0, 1), 2.3),
], False)
sketch17.addConstraint([
    Sketcher.Constraint("Equal", 0, 1),
    Sketcher.Constraint("Vertical", 0, 3, 1, 3),
    Sketcher.Constraint("Diameter", 0, Q("4.6 mm")),
    Sketcher.Constraint("DistanceY", -1, 1, 0, 3, Q("19.300649 mm")),
    Sketcher.Constraint("DistanceX", 0, 3, -1, 1, Q("17.075514 mm")),
    Sketcher.Constraint("DistanceY", -1, 1, 1, 3, Q("50.613733 mm")),
])
pocket7 = body.newObject("PartDesign::Pocket", "Pocket006")
pocket7.Profile = sketch17
pocket7.Length = 20

# Sketch on XZ plane
sketch18 = body.newObject("Sketcher::SketchObject", "Sketch017")
sketch18.AttachmentSupport = (doc.getObject("XZ_Plane"), [""])
sketch18.MapMode = "FlatFace"
sketch18.AttachmentOffset = App.Placement(App.Vector(0, 0, -48.10507), App.Rotation())
sketch18.addGeometry(Part.Circle(App.Vector(-17.075514, 75.391336, 0), App.Vector(0, 0, 1), 2.3), False)
sketch18.addConstraint([
    Sketcher.Constraint("Diameter", 0, Q("4.6 mm")),
    Sketcher.Constraint("DistanceX", 0, 3, -1, 1, Q("17.075514 mm")),
    Sketcher.Constraint("DistanceY", -1, 1, 0, 3, Q("75.391336 mm")),
])
pocket8 = body.newObject("PartDesign::Pocket", "Pocket007")
pocket8.Profile = sketch18
pocket8.Length = 20

# Sketch on XY plane
sketch19 = body.newObject("Sketcher::SketchObject", "Sketch018")
sketch19.AttachmentSupport = (doc.getObject("XY_Plane"), [""])
sketch19.MapMode = "FlatFace"
sketch19.AttachmentOffset = App.Placement(App.Vector(0, 0, 90), App.Rotation())
add_polygon(sketch19, [(-27.75981, 48.10507), (-23.310381, 48.10507), (-23.310381, 55), (-31.738641, 55)])  # lines 0-3
sketch19.addConstraint([
    Sketcher.Constraint("Horizontal", 0),
    Sketcher.Constraint("Vertical", 1),
    Sketcher.Constraint("Horizontal", 2),
    Sketcher.Constraint("DistanceY", -1, 1, 1, 2, Q("55 mm")),
    Sketcher.Constraint("Distance", 3, Q("7.9606 mm")),
    Sketcher.Constraint("DistanceX", 0, 1, 0, 2, Q("4.449429 mm")),
    Sketcher.Constraint("DistanceX", 2, 2, 2, 1, Q("8.42826 mm")),
    Sketcher.Constraint("DistanceX", 0, 2, -1, 1, Q("23.310381 mm")),
])
pad11 = body.newObject("PartDesign::Pad", "Pad010")
pad11.Profile = sketch19
pad11.Length = 20
pad11.Reversed = True

# Sketch on XZ plane
sketch20 = body.newObject("Sketcher::SketchObject", "Sketch019")
sketch20.AttachmentSupport = (doc.getObject("XZ_Plane"), [""])
sketch20.MapMode = "FlatFace"
sketch20.AttachmentOffset = App.Placement(App.Vector(0, 0, -55), App.Rotation())
add_polygon(sketch20, [(4, 0), (4, 15), (19, 15), (19, 0)])  # lines 0-3
add_polygon(sketch20, [(4, 75), (4, 90), (19, 90), (19, 75)])  # lines 4-7
sketch20.addConstraint([
    Sketcher.Constraint("Vertical", 0),
    Sketcher.Constraint("Horizontal", 1),
    Sketcher.Constraint("Vertical", 2),
    Sketcher.Constraint("Horizontal", 3),
    Sketcher.Constraint("Vertical", 4),
    Sketcher.Constraint("Horizontal", 5),
    Sketcher.Constraint("Vertical", 6),
    Sketcher.Constraint("Horizontal", 7),
    Sketcher.Constraint("PointOnObject", 2, 2, -1),
    Sketcher.Constraint("Vertical", 3, 2, 4, 2),
    Sketcher.Constraint("Vertical", 2, 2, 5, 2),
    Sketcher.Constraint("Equal", 7, 0),
    Sketcher.Constraint("Equal", 2, 4),
    Sketcher.Constraint("DistanceX", 1, 1, 1, 2, Q("15 mm")),
    Sketcher.Constraint("DistanceX", -1, 1, 0, 2, Q("4 mm")),
    Sketcher.Constraint("DistanceY", -1, 1, 4, 2, Q("90 mm")),
])
pad12 = body.newObject("PartDesign::Pad", "Pad011")
pad12.Profile = sketch20
pad12.Length = 10
pad12.Reversed = True

# Sketch on XZ plane
sketch21 = body.newObject("Sketcher::SketchObject", "Sketch020")
sketch21.AttachmentSupport = (doc.getObject("XZ_Plane"), [""])
sketch21.MapMode = "FlatFace"
sketch21.AttachmentOffset = App.Placement(App.Vector(0, 0, -52), App.Rotation())
sketch21.addGeometry([
    Part.Circle(App.Vector(12.254, 8, 0), App.Vector(0, 0, 1), 2.3),
    Part.Circle(App.Vector(12.254, 80, 0), App.Vector(0, 0, 1), 2.3),
], False)
sketch21.addConstraint([
    Sketcher.Constraint("Equal", 0, 1),
    Sketcher.Constraint("Vertical", 0, 3, 1, 3),
    Sketcher.Constraint("Diameter", 0, Q("4.6 mm")),
    Sketcher.Constraint("DistanceY", -1, 1, 0, 3, Q("8 mm")),
    Sketcher.Constraint("DistanceY", -1, 1, 1, 3, Q("80 mm")),
    Sketcher.Constraint("DistanceX", -1, 1, 0, 3, Q("12.254 mm")),
])
pocket9 = body.newObject("PartDesign::Pocket", "Pocket008")
pocket9.Profile = sketch21
pocket9.Length = 20

# Sketch on XZ plane
sketch22 = body.newObject("Sketcher::SketchObject", "Sketch021")
sketch22.AttachmentSupport = (doc.getObject("XZ_Plane"), [""])
sketch22.MapMode = "FlatFace"
sketch22.AttachmentOffset = App.Placement(App.Vector(0, 0, -48.10507), App.Rotation())
add_polygon(sketch22, [(-27.75981, 82), (-27.75981, 70), (-17.368783, 70), (-17.368783, 82)])  # lines 0-3
sketch22.addConstraint([
    Sketcher.Constraint("Vertical", 0),
    Sketcher.Constraint("Horizontal", 1),
    Sketcher.Constraint("Vertical", 2),
    Sketcher.Constraint("Horizontal", 3),
    Sketcher.Constraint("DistanceY", 0, 2, 0, 1, Q("12 mm")),
    Sketcher.Constraint("DistanceY", -1, 1, 0, 2, Q("70 mm")),
    Sketcher.Constraint("DistanceX", 1, 1, 1, 2, Q("10.391027 mm")),
    Sketcher.Constraint("DistanceX", 0, 2, -1, 1, Q("27.75981 mm")),
])
pad13 = body.newObject("PartDesign::Pad", "Pad012")
pad13.Profile = sketch22
pad13.Length = 5
pad13.Reversed = True

# Sketch on XZ plane
sketch23 = body.newObject("Sketcher::SketchObject", "Sketch022")
sketch23.AttachmentSupport = (doc.getObject("XZ_Plane"), [""])
sketch23.MapMode = "FlatFace"
sketch23.AttachmentOffset = App.Placement(App.Vector(0, 0, -48.10507), App.Rotation())
sketch23.addGeometry(Part.Circle(App.Vector(-17.075514, 75.391336, 0), App.Vector(0, 0, 1), 2.3), False)
sketch23.addConstraint([
    Sketcher.Constraint("Diameter", 0, Q("4.6 mm")),
    Sketcher.Constraint("DistanceX", 0, 3, -1, 1, Q("17.075514 mm")),
    Sketcher.Constraint("DistanceY", -1, 1, 0, 3, Q("75.391336 mm")),
])
pocket10 = body.newObject("PartDesign::Pocket", "Pocket009")
pocket10.Profile = sketch23
pocket10.Length = 45

# Sketch on XY plane
sketch24 = body.newObject("Sketcher::SketchObject", "Sketch023")
sketch24.AttachmentSupport = (doc.getObject("XY_Plane"), [""])
sketch24.MapMode = "FlatFace"
sketch24.AttachmentOffset = App.Placement(App.Vector(0, 0, 90), App.Rotation())
sketch24.addGeometry(Part.Circle(App.Vector(23.036116, 36.932801, 0), App.Vector(0, 0, 1), 60.036471), False)
sketch24.addConstraint([
    Sketcher.Constraint("Diameter", 0, Q("120.072943 mm")),
    Sketcher.Constraint("DistanceY", -1, 1, 0, 3, Q("36.932801 mm")),
    Sketcher.Constraint("DistanceX", -1, 1, 0, 3, Q("23.036116 mm")),
])
pocket11 = body.newObject("PartDesign::Pocket", "Pocket010")
pocket11.Profile = sketch24
pocket11.Length = 2

# Sketch on XZ plane
sketch25 = body.newObject("Sketcher::SketchObject", "Sketch024")
sketch25.AttachmentSupport = (doc.getObject("XZ_Plane"), [""])
sketch25.MapMode = "FlatFace"
sketch25.AttachmentOffset = App.Placement(App.Vector(0, 0, -55), App.Rotation())
add_polygon(sketch25, [(-31.738641, 0), (-31.738641, 88), (-26.738641, 88), (-26.738641, 0)])  # lines 0-3
sketch25.addConstraint([
    Sketcher.Constraint("Vertical", 0),
    Sketcher.Constraint("Horizontal", 1),
    Sketcher.Constraint("Vertical", 2),
    Sketcher.Constraint("Horizontal", 3),
    Sketcher.Constraint("PointOnObject", 2, 2, -1),
    Sketcher.Constraint("DistanceX", 1, 1, 1, 2, Q("5 mm")),
    Sketcher.Constraint("DistanceY", 0, 1, 0, 2, Q("88 mm")),
    Sketcher.Constraint("DistanceX", 0, 2, -1, 1, Q("31.738641 mm")),
])
pad14 = body.newObject("PartDesign::Pad", "Pad013")
pad14.Profile = sketch25
pad14.Length = 10
pad14.Reversed = True

# Sketch on XZ plane
sketch26 = body.newObject("Sketcher::SketchObject", "Sketch025")
sketch26.AttachmentSupport = (doc.getObject("XZ_Plane"), [""])
sketch26.MapMode = "FlatFace"
sketch26.AttachmentOffset = App.Placement(App.Vector(0, 0, -52), App.Rotation())
add_polygon(sketch26, [(12.254, 75.669873), (16.004, 77.834936), (16.004, 82.165064), (12.254, 84.330127), (8.504, 82.165064), (8.504, 77.834936)])  # lines 0-5
add_polygon(sketch26, [(15.567298, 5.21216), (16.32499, 9.47548), (13.011691, 12.263321), (8.940702, 10.78784), (8.18301, 6.52452), (11.496309, 3.736679)])  # lines 6-11
sketch26.addConstraint([
    Sketcher.Constraint("Vertical", 1),
    Sketcher.Constraint("Vertical", 4),
    Sketcher.Constraint("Parallel", 0, 3),
    Sketcher.Constraint("Parallel", 2, 5),
    Sketcher.Constraint("Parallel", 6, 9),
    Sketcher.Constraint("Parallel", 7, 10),
    Sketcher.Constraint("Parallel", 8, 11),
    Sketcher.Constraint("Horizontal", 1, 2, 3, 2),
    Sketcher.Constraint("Horizontal", 0, 2, 4, 2),
    Sketcher.Constraint("Vertical", 2, 2, 5, 2),
    Sketcher.Constraint("Equal", 5, 6),
    Sketcher.Constraint("Equal", 6, 7),
    Sketcher.Constraint("Equal", 7, 8),
    Sketcher.Constraint("Equal", 8, 9),
    Sketcher.Constraint("Angle", 0, Q("30 deg")),
    Sketcher.Constraint("DistanceX", 3, 2, 1, 2, Q("7.5 mm")),
    Sketcher.Constraint("DistanceX", -1, 1, 0, 2, Q("16.004 mm")),
    Sketcher.Constraint("DistanceX", -1, 1, 8, 2, Q("8.940702 mm")),
    Sketcher.Constraint("DistanceX", -1, 1, 11, 2, Q("15.567298 mm")),
    Sketcher.Constraint("DistanceX", 7, 2, 6, 2, Q("3.313298 mm")),
    Sketcher.Constraint("DistanceY", 9, 2, 7, 2, Q("5.738801 mm")),
    Sketcher.Constraint("DistanceY", 1, 1, 1, 2, Q("4.330127 mm")),
    Sketcher.Constraint("DistanceY", -1, 1, 6, 2, Q("9.47548 mm")),
    Sketcher.Constraint("DistanceY", -1, 1, 0, 2, Q("77.834936 mm")),
])
pocket12 = body.newObject("PartDesign::Pocket", "Pocket011")
pocket12.Profile = sketch26
pocket12.Length = 5

# Sketch on YZ plane
sketch27 = body.newObject("Sketcher::SketchObject", "Sketch026")
sketch27.AttachmentSupport = (doc.getObject("YZ_Plane"), [""])
sketch27.MapMode = "FlatFace"
sketch27.AttachmentOffset = App.Placement(App.Vector(0, 0, 4), App.Rotation())
sketch27.addGeometry([
    Part.Circle(App.Vector(36.485281, 47.514719, 0), App.Vector(0, 0, 1), 2.1),
    Part.Circle(App.Vector(20, 48, 0), App.Vector(0, 0, 1), 2.1),
    Part.Circle(App.Vector(19.514719, 16.485281, 0), App.Vector(0, 0, 1), 2.1),
    Part.Circle(App.Vector(36.485281, 16.485281, 0), App.Vector(0, 0, 1), 2.1),
], False)
sketch27.addConstraint([
    Sketcher.Constraint("Equal", 0, 1),
    Sketcher.Constraint("Equal", 1, 2),
    Sketcher.Constraint("Equal", 2, 3),
    Sketcher.Constraint("Horizontal", 2, 3, 3, 3),
    Sketcher.Constraint("Vertical", 0, 3, 3, 3),
    Sketcher.Constraint("Diameter", 0, Q("4.2 mm")),
    Sketcher.Constraint("DistanceX", -1, 1, 1, 3, Q("20 mm")),
    Sketcher.Constraint("DistanceY", -1, 1, 1, 3, Q("48 mm")),
    Sketcher.Constraint("DistanceX", -1, 1, 0, 3, Q("36.485281 mm")),
    Sketcher.Constraint("DistanceY", -1, 1, 0, 3, Q("47.514719 mm")),
    Sketcher.Constraint("DistanceX", -1, 1, 2, 3, Q("19.514719 mm")),
    Sketcher.Constraint("DistanceY", -1, 1, 2, 3, Q("16.485281 mm")),
])
pocket13 = body.newObject("PartDesign::Pocket", "Pocket012")
pocket13.Profile = sketch27
pocket13.Length = 5

# Sketch on YZ plane
sketch28 = body.newObject("Sketcher::SketchObject", "Sketch027")
sketch28.AttachmentSupport = (doc.getObject("YZ_Plane"), [""])
sketch28.MapMode = "FlatFace"
sketch28.AttachmentOffset = App.Placement(App.Vector(0, 0, 56.254), App.Rotation())
add_polygon(sketch28, [(50.308266, 88), (4, 88), (4, 33), (50.308266, 33)])  # lines 0-3
sketch28.addConstraint([
    Sketcher.Constraint("Horizontal", 0),
    Sketcher.Constraint("Vertical", 1),
    Sketcher.Constraint("Horizontal", 2),
    Sketcher.Constraint("Vertical", 3),
    Sketcher.Constraint("DistanceY", 1, 2, 1, 1, Q("55 mm")),
    Sketcher.Constraint("DistanceX", -1, 1, 0, 2, Q("4 mm")),
    Sketcher.Constraint("DistanceY", -1, 1, 0, 2, Q("88 mm")),
    Sketcher.Constraint("DistanceX", 0, 2, 0, 1, Q("46.308266 mm")),
])
pocket14 = body.newObject("PartDesign::Pocket", "Pocket013")
pocket14.Profile = sketch28
pocket14.Length = 5

doc.recompute()
